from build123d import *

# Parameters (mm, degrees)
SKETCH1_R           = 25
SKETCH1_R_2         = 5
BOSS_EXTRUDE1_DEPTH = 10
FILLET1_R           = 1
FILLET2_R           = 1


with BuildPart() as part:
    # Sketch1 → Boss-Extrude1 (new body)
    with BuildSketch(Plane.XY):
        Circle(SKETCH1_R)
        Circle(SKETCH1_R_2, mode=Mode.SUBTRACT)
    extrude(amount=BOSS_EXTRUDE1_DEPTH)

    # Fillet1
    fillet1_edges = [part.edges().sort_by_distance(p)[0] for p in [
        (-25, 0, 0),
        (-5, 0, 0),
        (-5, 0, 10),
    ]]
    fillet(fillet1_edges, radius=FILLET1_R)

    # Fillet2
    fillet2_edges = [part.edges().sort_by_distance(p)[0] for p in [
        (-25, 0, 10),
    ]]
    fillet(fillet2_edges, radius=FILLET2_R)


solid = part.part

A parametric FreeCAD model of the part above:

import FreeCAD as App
import Part
import Sketcher
from FreeCAD import Vector
Q = App.Units.Quantity


def edges_at(feature, points):
    """Names of the edges that pass closest to the given points."""
    edges = feature.Shape.Edges
    near = lambda p: min(range(len(edges)), key=lambda i: edges[i].distToShape(Part.Vertex(*p))[0])
    return sorted({f"Edge{near(p) + 1}" for p in points})

doc = App.newDocument("Part")
params = doc.addObject("Spreadsheet::Sheet", "Params")
for row, (alias, value) in enumerate([
    ("sketch1_diameter", "50 mm"),
    ("sketch1_diameter2", "10 mm"),
    ("pad1_length", "10 mm"),
    ("fillet_radius", "1 mm"),
    ("fillet2_radius", "1 mm"),
], start=1):
    params.set(f"A{row}", alias)
    params.set(f"B{row}", "=" + value)
    params.setAlias(f"B{row}", alias)

body = doc.addObject("PartDesign::Body", "Body")

# Sketch on XY plane
sketch1 = body.newObject("Sketcher::SketchObject", "Sketch")
sketch1.AttachmentSupport = (doc.getObject("XY_Plane"), [""])
sketch1.MapMode = "FlatFace"
sketch1.addGeometry([
    Part.Circle(Vector(0, 0, 0), Vector(0, 0, 1), 25),
    Part.Circle(Vector(0, 0, 0), Vector(0, 0, 1), 5),
], False)
sketch1.addConstraint([
    Sketcher.Constraint("Coincident", 0, 3, -1, 1),
    Sketcher.Constraint("Coincident", 1, 3, -1, 1),
    Sketcher.Constraint("Diameter", 0, Q("50 mm")),
    Sketcher.Constraint("Diameter", 1, Q("10 mm")),
])
sketch1.setExpression("Constraints[2]", "Params.sketch1_diameter")
sketch1.setExpression("Constraints[3]", "Params.sketch1_diameter2")
pad1 = body.newObject("PartDesign::Pad", "Pad")
pad1.Profile = sketch1
pad1.setExpression("Length", "Params.pad1_length")
doc.recompute()

fillet = body.newObject("PartDesign::Fillet", "Fillet")
fillet.Base = (pad1, edges_at(pad1, [(-25, 0, 0), (-5, 0, 0), (-5, 0, 10)]))
fillet.setExpression("Radius", "Params.fillet_radius")
doc.recompute()

fillet2 = body.newObject("PartDesign::Fillet", "Fillet001")
fillet2.Base = (fillet, edges_at(fillet, [(-25, 0, 10)]))
fillet2.setExpression("Radius", "Params.fillet2_radius")

doc.recompute()
